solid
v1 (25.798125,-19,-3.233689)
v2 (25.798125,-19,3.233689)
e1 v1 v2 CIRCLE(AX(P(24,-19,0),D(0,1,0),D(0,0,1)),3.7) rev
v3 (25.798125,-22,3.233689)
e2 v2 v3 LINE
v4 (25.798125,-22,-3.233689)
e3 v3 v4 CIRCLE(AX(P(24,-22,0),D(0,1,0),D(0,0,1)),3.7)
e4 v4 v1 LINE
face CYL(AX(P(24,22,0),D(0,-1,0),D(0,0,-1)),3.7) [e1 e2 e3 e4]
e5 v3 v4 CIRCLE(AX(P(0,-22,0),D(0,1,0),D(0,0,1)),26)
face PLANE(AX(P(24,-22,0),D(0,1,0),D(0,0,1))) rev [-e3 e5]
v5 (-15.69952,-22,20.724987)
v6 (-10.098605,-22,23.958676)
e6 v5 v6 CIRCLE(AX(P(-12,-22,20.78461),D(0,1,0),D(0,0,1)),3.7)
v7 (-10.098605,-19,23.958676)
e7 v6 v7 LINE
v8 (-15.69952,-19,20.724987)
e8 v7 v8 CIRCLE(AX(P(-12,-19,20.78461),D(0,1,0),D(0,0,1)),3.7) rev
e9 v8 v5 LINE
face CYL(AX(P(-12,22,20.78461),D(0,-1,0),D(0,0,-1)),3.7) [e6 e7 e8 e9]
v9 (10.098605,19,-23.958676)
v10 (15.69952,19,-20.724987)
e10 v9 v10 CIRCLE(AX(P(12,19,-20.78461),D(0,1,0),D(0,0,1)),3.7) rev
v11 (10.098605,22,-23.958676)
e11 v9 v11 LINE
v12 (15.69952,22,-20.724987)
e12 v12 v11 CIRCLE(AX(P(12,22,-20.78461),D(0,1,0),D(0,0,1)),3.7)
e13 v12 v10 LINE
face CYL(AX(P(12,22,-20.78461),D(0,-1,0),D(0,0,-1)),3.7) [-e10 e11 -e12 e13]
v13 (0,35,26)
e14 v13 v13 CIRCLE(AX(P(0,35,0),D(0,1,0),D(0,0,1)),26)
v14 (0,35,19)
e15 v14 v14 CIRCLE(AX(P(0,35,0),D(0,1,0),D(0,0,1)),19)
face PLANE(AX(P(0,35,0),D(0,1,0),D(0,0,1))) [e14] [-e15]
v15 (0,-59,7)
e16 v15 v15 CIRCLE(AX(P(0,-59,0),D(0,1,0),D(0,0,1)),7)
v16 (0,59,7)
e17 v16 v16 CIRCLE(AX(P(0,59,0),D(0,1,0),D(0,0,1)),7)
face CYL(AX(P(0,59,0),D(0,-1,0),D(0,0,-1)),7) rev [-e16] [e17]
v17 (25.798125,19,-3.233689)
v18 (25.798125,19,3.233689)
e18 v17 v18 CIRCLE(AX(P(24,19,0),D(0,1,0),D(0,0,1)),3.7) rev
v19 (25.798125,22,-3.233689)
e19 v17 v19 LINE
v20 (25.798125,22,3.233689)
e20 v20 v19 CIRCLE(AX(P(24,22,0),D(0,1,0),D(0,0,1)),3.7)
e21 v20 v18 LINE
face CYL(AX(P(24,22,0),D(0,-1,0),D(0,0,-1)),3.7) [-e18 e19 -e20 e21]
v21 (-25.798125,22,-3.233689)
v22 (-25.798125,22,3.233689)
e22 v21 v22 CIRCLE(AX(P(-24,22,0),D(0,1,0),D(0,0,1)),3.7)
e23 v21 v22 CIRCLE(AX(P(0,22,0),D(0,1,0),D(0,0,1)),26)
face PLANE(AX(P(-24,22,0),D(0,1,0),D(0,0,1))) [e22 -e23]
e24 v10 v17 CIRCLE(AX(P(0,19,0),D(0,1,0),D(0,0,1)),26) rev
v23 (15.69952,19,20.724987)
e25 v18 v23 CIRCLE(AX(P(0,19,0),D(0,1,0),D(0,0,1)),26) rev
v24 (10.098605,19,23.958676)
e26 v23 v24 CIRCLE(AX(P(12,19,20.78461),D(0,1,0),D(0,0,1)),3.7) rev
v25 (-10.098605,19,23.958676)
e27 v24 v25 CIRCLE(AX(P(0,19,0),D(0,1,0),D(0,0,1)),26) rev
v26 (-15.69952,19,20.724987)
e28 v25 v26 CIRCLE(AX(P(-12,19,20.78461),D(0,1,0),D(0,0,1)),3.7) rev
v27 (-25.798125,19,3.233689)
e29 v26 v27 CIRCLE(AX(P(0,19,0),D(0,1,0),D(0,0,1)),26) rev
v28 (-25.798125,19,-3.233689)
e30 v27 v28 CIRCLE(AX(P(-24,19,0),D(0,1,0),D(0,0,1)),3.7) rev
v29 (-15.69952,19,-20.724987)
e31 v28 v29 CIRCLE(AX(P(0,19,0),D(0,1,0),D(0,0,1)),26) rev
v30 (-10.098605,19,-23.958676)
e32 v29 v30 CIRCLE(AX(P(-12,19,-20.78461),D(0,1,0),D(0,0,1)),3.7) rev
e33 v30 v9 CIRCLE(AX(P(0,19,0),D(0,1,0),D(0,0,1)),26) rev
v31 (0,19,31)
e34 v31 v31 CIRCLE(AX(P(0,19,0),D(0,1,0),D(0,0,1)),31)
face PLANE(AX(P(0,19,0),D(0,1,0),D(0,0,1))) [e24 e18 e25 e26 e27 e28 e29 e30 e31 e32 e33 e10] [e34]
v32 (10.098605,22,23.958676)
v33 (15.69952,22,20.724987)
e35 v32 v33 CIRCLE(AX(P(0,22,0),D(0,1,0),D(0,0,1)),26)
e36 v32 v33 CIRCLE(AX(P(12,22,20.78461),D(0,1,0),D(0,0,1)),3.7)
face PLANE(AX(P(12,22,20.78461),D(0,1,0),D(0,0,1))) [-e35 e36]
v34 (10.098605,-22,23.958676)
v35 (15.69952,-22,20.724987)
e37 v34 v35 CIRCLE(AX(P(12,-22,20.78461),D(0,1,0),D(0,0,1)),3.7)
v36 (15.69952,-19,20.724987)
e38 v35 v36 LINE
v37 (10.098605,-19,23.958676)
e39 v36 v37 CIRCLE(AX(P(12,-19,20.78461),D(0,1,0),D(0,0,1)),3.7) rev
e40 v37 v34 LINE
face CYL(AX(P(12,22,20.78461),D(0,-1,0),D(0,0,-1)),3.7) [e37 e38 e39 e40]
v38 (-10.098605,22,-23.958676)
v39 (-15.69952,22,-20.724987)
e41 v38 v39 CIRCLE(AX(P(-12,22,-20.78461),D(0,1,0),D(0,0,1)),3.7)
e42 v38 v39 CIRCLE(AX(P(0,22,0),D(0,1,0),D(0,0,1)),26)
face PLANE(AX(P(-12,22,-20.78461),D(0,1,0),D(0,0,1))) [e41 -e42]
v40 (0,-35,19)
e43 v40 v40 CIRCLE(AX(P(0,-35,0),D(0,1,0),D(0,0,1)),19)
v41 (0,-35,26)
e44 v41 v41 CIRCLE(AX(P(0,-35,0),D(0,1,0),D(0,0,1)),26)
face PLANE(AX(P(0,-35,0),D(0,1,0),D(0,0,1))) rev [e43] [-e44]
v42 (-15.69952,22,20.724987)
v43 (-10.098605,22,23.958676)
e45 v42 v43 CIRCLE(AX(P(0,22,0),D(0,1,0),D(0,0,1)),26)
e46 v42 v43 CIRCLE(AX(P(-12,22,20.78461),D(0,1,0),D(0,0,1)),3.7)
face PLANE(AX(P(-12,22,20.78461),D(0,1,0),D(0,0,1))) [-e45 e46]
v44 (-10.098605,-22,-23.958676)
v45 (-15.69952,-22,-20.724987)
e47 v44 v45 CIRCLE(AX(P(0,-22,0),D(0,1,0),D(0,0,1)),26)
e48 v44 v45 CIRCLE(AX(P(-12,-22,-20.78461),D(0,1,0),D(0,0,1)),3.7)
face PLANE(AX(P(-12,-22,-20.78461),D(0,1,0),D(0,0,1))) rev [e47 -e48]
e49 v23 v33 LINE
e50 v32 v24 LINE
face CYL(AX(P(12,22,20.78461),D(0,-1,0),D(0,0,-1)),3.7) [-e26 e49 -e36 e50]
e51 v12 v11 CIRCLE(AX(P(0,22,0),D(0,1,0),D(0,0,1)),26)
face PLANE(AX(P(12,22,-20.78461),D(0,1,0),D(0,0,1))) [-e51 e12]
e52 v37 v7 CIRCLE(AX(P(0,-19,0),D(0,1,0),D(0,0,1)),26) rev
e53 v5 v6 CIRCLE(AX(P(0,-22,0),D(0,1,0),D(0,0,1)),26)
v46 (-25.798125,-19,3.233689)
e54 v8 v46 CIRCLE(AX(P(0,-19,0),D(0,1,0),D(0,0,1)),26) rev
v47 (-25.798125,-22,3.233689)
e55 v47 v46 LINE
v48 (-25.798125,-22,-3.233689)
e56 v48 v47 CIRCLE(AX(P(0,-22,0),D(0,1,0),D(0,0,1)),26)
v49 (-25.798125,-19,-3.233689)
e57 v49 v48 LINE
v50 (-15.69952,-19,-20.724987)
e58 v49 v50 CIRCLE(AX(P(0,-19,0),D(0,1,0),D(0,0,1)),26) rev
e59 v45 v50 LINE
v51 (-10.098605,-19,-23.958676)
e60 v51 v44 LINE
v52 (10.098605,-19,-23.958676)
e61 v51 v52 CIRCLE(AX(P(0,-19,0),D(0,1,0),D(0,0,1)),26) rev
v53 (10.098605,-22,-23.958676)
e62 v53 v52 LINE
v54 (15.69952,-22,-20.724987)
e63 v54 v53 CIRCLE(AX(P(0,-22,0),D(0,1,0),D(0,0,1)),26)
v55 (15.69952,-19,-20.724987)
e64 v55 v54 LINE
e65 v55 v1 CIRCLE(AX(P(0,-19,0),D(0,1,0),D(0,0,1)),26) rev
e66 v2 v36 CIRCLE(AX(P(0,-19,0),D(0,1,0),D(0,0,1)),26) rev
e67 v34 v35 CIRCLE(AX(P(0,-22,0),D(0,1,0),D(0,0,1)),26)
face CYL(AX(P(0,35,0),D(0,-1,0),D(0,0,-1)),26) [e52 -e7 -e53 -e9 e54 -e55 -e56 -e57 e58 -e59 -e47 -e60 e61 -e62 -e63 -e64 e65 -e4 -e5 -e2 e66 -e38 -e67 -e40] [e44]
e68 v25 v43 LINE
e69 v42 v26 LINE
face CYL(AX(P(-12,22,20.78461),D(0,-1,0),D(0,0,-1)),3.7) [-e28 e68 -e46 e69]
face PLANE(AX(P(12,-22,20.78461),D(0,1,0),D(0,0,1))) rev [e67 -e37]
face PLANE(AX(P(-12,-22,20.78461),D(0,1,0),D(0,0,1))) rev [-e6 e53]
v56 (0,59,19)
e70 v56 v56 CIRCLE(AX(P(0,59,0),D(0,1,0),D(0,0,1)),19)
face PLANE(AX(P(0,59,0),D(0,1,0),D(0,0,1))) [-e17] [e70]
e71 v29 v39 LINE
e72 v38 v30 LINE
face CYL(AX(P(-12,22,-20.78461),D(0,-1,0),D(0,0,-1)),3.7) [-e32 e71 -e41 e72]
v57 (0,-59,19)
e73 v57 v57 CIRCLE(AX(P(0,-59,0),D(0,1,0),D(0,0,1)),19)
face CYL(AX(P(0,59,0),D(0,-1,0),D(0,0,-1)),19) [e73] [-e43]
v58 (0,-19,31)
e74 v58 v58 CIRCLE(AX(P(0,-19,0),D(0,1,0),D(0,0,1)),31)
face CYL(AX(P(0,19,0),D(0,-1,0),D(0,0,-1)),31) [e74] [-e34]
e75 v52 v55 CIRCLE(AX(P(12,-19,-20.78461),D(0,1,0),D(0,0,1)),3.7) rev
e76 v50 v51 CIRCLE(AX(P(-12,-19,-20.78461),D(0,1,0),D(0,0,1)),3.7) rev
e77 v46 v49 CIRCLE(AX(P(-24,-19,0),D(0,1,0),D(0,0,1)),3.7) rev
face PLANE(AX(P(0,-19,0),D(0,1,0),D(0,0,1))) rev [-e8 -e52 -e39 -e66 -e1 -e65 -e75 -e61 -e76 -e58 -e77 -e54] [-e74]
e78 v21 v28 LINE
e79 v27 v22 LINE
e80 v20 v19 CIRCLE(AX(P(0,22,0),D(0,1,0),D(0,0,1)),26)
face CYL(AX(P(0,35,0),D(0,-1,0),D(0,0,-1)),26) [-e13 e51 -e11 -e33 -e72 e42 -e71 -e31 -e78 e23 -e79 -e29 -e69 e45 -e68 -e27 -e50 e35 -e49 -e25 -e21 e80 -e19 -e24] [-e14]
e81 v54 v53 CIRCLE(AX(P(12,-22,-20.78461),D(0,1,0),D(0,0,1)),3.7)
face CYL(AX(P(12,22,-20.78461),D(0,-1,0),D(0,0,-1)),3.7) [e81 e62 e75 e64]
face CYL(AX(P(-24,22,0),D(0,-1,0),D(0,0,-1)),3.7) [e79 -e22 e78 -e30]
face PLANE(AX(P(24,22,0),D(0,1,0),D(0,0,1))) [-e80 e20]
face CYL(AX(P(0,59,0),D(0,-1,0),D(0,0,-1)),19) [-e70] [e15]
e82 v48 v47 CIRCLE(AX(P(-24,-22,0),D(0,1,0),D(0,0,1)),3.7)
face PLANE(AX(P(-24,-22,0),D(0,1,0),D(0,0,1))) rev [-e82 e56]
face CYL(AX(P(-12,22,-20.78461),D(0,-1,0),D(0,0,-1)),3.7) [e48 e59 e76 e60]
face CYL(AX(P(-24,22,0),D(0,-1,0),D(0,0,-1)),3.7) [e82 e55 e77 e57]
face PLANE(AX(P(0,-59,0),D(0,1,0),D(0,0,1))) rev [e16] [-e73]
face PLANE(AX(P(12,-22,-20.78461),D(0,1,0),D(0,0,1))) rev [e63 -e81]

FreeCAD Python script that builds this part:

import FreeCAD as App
import Part
import Sketcher

V = App.Vector
Q = App.Units.Quantity

doc = App.newDocument("Part")
body = doc.addObject("PartDesign::Body", "Body")

# Sketch on XZ plane
sketch1 = doc.addObject("Sketcher::SketchObject", "Sketch")
body.addObject(sketch1)
sketch1.AttachmentSupport = (doc.XZ_Plane, [""])
sketch1.MapMode = "FlatFace"
sketch1.addGeometry([
    Part.Circle(V(0, 0, 0), V(0, 0, 1), 19),
    Part.Circle(V(0, 0, 0), V(0, 0, 1), 7),
], False)
sketch1.addConstraint([
    Sketcher.Constraint("Coincident", 0, 3, -1, 1),
    Sketcher.Constraint("Coincident", 1, 3, -1, 1),
    Sketcher.Constraint("Diameter", 0, Q("38 mm")),
    Sketcher.Constraint("Diameter", 1, Q("14 mm")),
])
pad1 = doc.addObject("PartDesign::Pad", "Pad")
body.addObject(pad1)
pad1.Profile = sketch1
pad1.Length = 118
pad1.Midplane = True

# Sketch on XZ plane
sketch2 = doc.addObject("Sketcher::SketchObject", "Sketch001")
body.addObject(sketch2)
sketch2.AttachmentSupport = (doc.XZ_Plane, [""])
sketch2.MapMode = "FlatFace"
sketch2.addGeometry([
    Part.Circle(V(0, 0, 0), V(0, 0, 1), 31),
    Part.Circle(V(0, 0, 0), V(0, 0, 1), 11),
], False)
sketch2.addConstraint([
    Sketcher.Constraint("Coincident", 0, 3, -1, 1),
    Sketcher.Constraint("Coincident", 1, 3, -1, 1),
    Sketcher.Constraint("Diameter", 0, Q("62 mm")),
    Sketcher.Constraint("Diameter", 1, Q("22 mm")),
])
pad2 = doc.addObject("PartDesign::Pad", "Pad001")
body.addObject(pad2)
pad2.Profile = sketch2
pad2.Length = 38
pad2.Midplane = True

# Sketch on XZ plane
sketch3 = doc.addObject("Sketcher::SketchObject", "Sketch002")
body.addObject(sketch3)
sketch3.AttachmentSupport = (doc.XZ_Plane, [""])
sketch3.MapMode = "FlatFace"
sketch3.addGeometry([
    Part.Circle(V(0, 0, 0), V(0, 0, 1), 26),
    Part.Circle(V(0, 0, 0), V(0, 0, 1), 9),
], False)
sketch3.addConstraint([
    Sketcher.Constraint("Coincident", 0, 3, -1, 1),
    Sketcher.Constraint("Coincident", 1, 3, -1, 1),
    Sketcher.Constraint("Diameter", 0, Q("52 mm")),
    Sketcher.Constraint("Diameter", 1, Q("18 mm")),
])
pad3 = doc.addObject("PartDesign::Pad", "Pad002")
body.addObject(pad3)
pad3.Profile = sketch3
pad3.Length = 70
pad3.Midplane = True

# Sketch on XZ plane
sketch4 = doc.addObject("Sketcher::SketchObject", "Sketch003")
body.addObject(sketch4)
sketch4.AttachmentSupport = (doc.XZ_Plane, [""])
sketch4.MapMode = "FlatFace"
sketch4.addGeometry(Part.Circle(V(24, 0, 0), V(0, 0, 1), 3.7), False)
sketch4.addConstraint([
    Sketcher.Constraint("PointOnObject", 0, 3, -1),
    Sketcher.Constraint("Diameter", 0, Q("7.4 mm")),
    Sketcher.Constraint("DistanceX", -1, 1, 0, 3, Q("24 mm")),
])
pad4 = doc.addObject("PartDesign::Pad", "Pad003")
body.addObject(pad4)
pad4.Profile = sketch4
pad4.Length = 44
pad4.Midplane = True

# Sketch on XZ plane
sketch5 = doc.addObject("Sketcher::SketchObject", "Sketch004")
body.addObject(sketch5)
sketch5.AttachmentSupport = (doc.XZ_Plane, [""])
sketch5.MapMode = "FlatFace"
sketch5.addGeometry(Part.Circle(V(12, -20.78461, 0), V(0, 0, 1), 3.7), False)
sketch5.addConstraint([
    Sketcher.Constraint("Diameter", 0, Q("7.4 mm")),
    Sketcher.Constraint("DistanceX", -1, 1, 0, 3, Q("12 mm")),
    Sketcher.Constraint("DistanceY", 0, 3, -1, 1, Q("20.78461 mm")),
])
pad5 = doc.addObject("PartDesign::Pad", "Pad004")
body.addObject(pad5)
pad5.Profile = sketch5
pad5.Length = 44
pad5.Midplane = True

# Sketch on XZ plane
sketch6 = doc.addObject("Sketcher::SketchObject", "Sketch005")
body.addObject(sketch6)
sketch6.AttachmentSupport = (doc.XZ_Plane, [""])
sketch6.MapMode = "FlatFace"
sketch6.addGeometry(Part.Circle(V(-12, -20.78461, 0), V(0, 0, 1), 3.7), False)
sketch6.addConstraint([
    Sketcher.Constraint("Diameter", 0, Q("7.4 mm")),
    Sketcher.Constraint("DistanceX", 0, 3, -1, 1, Q("12 mm")),
    Sketcher.Constraint("DistanceY", 0, 3, -1, 1, Q("20.78461 mm")),
])
pad6 = doc.addObject("PartDesign::Pad", "Pad005")
body.addObject(pad6)
pad6.Profile = sketch6
pad6.Length = 44
pad6.Midplane = True

# Sketch on XZ plane
sketch7 = doc.addObject("Sketcher::SketchObject", "Sketch006")
body.addObject(sketch7)
sketch7.AttachmentSupport = (doc.XZ_Plane, [""])
sketch7.MapMode = "FlatFace"
sketch7.addGeometry(Part.Circle(V(-24, 0, 0), V(0, 0, 1), 3.7), False)
sketch7.addConstraint([
    Sketcher.Constraint("PointOnObject", 0, 3, -1),
    Sketcher.Constraint("Diameter", 0, Q("7.4 mm")),
    Sketcher.Constraint("DistanceX", 0, 3, -1, 1, Q("24 mm")),
])
pad7 = doc.addObject("PartDesign::Pad", "Pad006")
body.addObject(pad7)
pad7.Profile = sketch7
pad7.Length = 44
pad7.Midplane = True

# Sketch on XZ plane
sketch8 = doc.addObject("Sketcher::SketchObject", "Sketch007")
body.addObject(sketch8)
sketch8.AttachmentSupport = (doc.XZ_Plane, [""])
sketch8.MapMode = "FlatFace"
sketch8.addGeometry(Part.Circle(V(-12, 20.78461, 0), V(0, 0, 1), 3.7), False)
sketch8.addConstraint([
    Sketcher.Constraint("Diameter", 0, Q("7.4 mm")),
    Sketcher.Constraint("DistanceX", 0, 3, -1, 1, Q("12 mm")),
    Sketcher.Constraint("DistanceY", -1, 1, 0, 3, Q("20.78461 mm")),
])
pad8 = doc.addObject("PartDesign::Pad", "Pad007")
body.addObject(pad8)
pad8.Profile = sketch8
pad8.Length = 44
pad8.Midplane = True

# Sketch on XZ plane
sketch9 = doc.addObject("Sketcher::SketchObject", "Sketch008")
body.addObject(sketch9)
sketch9.AttachmentSupport = (doc.XZ_Plane, [""])
sketch9.MapMode = "FlatFace"
sketch9.addGeometry(Part.Circle(V(12, 20.78461, 0), V(0, 0, 1), 3.7), False)
sketch9.addConstraint([
    Sketcher.Constraint("Diameter", 0, Q("7.4 mm")),
    Sketcher.Constraint("DistanceX", -1, 1, 0, 3, Q("12 mm")),
    Sketcher.Constraint("DistanceY", -1, 1, 0, 3, Q("20.78461 mm")),
])
pad9 = doc.addObject("PartDesign::Pad", "Pad008")
body.addObject(pad9)
pad9.Profile = sketch9
pad9.Length = 44
pad9.Midplane = True

doc.recompute()
